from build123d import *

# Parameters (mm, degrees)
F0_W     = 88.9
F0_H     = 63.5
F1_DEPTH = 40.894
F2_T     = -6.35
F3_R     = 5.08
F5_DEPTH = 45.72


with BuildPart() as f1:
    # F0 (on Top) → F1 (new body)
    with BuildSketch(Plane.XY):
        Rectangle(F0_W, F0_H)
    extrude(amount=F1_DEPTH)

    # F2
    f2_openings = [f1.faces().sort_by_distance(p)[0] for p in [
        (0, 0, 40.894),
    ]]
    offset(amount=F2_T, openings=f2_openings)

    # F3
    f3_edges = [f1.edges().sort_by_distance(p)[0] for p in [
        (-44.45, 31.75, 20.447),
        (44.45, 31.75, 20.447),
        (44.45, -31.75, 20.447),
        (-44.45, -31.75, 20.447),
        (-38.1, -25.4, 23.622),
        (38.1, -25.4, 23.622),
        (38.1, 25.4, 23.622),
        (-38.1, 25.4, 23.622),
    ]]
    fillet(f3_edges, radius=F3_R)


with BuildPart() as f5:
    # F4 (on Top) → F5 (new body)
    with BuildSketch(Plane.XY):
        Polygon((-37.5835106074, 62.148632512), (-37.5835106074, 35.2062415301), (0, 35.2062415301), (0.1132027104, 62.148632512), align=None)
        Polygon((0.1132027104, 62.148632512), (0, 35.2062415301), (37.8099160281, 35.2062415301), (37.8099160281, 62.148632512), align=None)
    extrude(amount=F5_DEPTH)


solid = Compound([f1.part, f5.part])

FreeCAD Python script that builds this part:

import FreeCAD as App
import Part
import Sketcher
Q = App.Units.Quantity


def edges_at(feature, points):
    """Names of the edges that pass closest to the given points."""
    edges = feature.Shape.Edges
    near = lambda p: min(range(len(edges)), key=lambda i: edges[i].distToShape(Part.Vertex(*p))[0])
    return sorted({f"Edge{near(p) + 1}" for p in points})


def faces_at(feature, points):
    """Names of the faces that lie closest to the given points."""
    faces = feature.Shape.Faces
    near = lambda p: min(range(len(faces)), key=lambda i: faces[i].distToShape(Part.Vertex(*p))[0])
    return sorted({f"Face{near(p) + 1}" for p in points})

doc = App.newDocument("Part")
body = doc.addObject("PartDesign::Body", "Body")

# Sketch on XY plane
sketch1 = doc.addObject("Sketcher::SketchObject", "Sketch")
body.addObject(sketch1)
sketch1.AttachmentSupport = (doc.XY_Plane, [""])
sketch1.MapMode = "FlatFace"
sketch1.addGeometry([
    Part.LineSegment(App.Vector(-44.45, 31.75, 0), App.Vector(-44.45, -31.75, 0)),
    Part.LineSegment(App.Vector(-44.45, -31.75, 0), App.Vector(44.45, -31.75, 0)),
    Part.LineSegment(App.Vector(44.45, -31.75, 0), App.Vector(44.45, 31.75, 0)),
    Part.LineSegment(App.Vector(44.45, 31.75, 0), App.Vector(-44.45, 31.75, 0)),
], False)
sketch1.addConstraint([
    Sketcher.Constraint("Coincident", 0, 2, 1, 1),
    Sketcher.Constraint("Coincident", 1, 2, 2, 1),
    Sketcher.Constraint("Coincident", 2, 2, 3, 1),
    Sketcher.Constraint("Coincident", 3, 2, 0, 1),
    Sketcher.Constraint("Vertical", 0),
    Sketcher.Constraint("Horizontal", 1),
    Sketcher.Constraint("Vertical", 2),
    Sketcher.Constraint("Horizontal", 3),
    Sketcher.Constraint("Symmetric", 0, 2, 2, 2, -1, 1),
    Sketcher.Constraint("DistanceX", 1, 1, 1, 2, Q("3.5 in")),
    Sketcher.Constraint("DistanceY", 0, 2, 0, 1, Q("2.5 in")),
])
pad1 = doc.addObject("PartDesign::Pad", "Pad")
body.addObject(pad1)
pad1.Profile = sketch1
pad1.Length = Q("1.61 in")
doc.recompute()

thickness = doc.addObject("PartDesign::Thickness", "Thickness")
body.addObject(thickness)
thickness.Base = (pad1, faces_at(pad1, [(0, 0, 40.894)]))
thickness.Value = Q("0.25 in")
thickness.Reversed = True
thickness.Join = "Arc"
doc.recompute()

fillet = doc.addObject("PartDesign::Fillet", "Fillet")
body.addObject(fillet)
fillet.Base = (thickness, edges_at(thickness, [
    (-44.45, 31.75, 20.447),
    (44.45, 31.75, 20.447),
    (44.45, -31.75, 20.447),
    (-44.45, -31.75, 20.447),
    (-38.1, -25.4, 23.622),
    (38.1, -25.4, 23.622),
    (38.1, 25.4, 23.622),
    (-38.1, 25.4, 23.622),
]))
fillet.Radius = Q("0.2 in")
body2 = doc.addObject("PartDesign::Body", "Body001")

# Sketch on XY plane
sketch2 = doc.addObject("Sketcher::SketchObject", "Sketch001")
body2.addObject(sketch2)
sketch2.AttachmentSupport = (doc.getObject("XY_Plane001"), [""])
sketch2.MapMode = "FlatFace"
sketch2.addGeometry([
    Part.LineSegment(App.Vector(-37.583511, 62.148633, 0), App.Vector(-37.583511, 35.206242, 0)),
    Part.LineSegment(App.Vector(-37.583511, 35.206242, 0), App.Vector(37.809916, 35.206242, 0)),
    Part.LineSegment(App.Vector(37.809916, 35.206242, 0), App.Vector(37.809916, 62.148633, 0)),
    Part.LineSegment(App.Vector(37.809916, 62.148633, 0), App.Vector(-37.583511, 62.148633, 0)),
], False)
sketch2.addConstraint([
    Sketcher.Constraint("Coincident", 0, 2, 1, 1),
    Sketcher.Constraint("Coincident", 1, 2, 2, 1),
    Sketcher.Constraint("Coincident", 2, 2, 3, 1),
    Sketcher.Constraint("Coincident", 3, 2, 0, 1),
    Sketcher.Constraint("Vertical", 0),
    Sketcher.Constraint("Horizontal", 1),
    Sketcher.Constraint("Vertical", 2),
    Sketcher.Constraint("Horizontal", 3),
    Sketcher.Constraint("DistanceY", 0, 2, 0, 1, 26.942391),
    Sketcher.Constraint("DistanceX", 1, 1, 1, 2, 75.393427),
    Sketcher.Constraint("DistanceX", 0, 2, -1, 1, 37.583511),
    Sketcher.Constraint("DistanceY", -1, 1, 0, 2, 35.206242),
])
pad2 = doc.addObject("PartDesign::Pad", "Pad001")
body2.addObject(pad2)
pad2.Profile = sketch2
pad2.Length = Q("1.8 in")

doc.recompute()
